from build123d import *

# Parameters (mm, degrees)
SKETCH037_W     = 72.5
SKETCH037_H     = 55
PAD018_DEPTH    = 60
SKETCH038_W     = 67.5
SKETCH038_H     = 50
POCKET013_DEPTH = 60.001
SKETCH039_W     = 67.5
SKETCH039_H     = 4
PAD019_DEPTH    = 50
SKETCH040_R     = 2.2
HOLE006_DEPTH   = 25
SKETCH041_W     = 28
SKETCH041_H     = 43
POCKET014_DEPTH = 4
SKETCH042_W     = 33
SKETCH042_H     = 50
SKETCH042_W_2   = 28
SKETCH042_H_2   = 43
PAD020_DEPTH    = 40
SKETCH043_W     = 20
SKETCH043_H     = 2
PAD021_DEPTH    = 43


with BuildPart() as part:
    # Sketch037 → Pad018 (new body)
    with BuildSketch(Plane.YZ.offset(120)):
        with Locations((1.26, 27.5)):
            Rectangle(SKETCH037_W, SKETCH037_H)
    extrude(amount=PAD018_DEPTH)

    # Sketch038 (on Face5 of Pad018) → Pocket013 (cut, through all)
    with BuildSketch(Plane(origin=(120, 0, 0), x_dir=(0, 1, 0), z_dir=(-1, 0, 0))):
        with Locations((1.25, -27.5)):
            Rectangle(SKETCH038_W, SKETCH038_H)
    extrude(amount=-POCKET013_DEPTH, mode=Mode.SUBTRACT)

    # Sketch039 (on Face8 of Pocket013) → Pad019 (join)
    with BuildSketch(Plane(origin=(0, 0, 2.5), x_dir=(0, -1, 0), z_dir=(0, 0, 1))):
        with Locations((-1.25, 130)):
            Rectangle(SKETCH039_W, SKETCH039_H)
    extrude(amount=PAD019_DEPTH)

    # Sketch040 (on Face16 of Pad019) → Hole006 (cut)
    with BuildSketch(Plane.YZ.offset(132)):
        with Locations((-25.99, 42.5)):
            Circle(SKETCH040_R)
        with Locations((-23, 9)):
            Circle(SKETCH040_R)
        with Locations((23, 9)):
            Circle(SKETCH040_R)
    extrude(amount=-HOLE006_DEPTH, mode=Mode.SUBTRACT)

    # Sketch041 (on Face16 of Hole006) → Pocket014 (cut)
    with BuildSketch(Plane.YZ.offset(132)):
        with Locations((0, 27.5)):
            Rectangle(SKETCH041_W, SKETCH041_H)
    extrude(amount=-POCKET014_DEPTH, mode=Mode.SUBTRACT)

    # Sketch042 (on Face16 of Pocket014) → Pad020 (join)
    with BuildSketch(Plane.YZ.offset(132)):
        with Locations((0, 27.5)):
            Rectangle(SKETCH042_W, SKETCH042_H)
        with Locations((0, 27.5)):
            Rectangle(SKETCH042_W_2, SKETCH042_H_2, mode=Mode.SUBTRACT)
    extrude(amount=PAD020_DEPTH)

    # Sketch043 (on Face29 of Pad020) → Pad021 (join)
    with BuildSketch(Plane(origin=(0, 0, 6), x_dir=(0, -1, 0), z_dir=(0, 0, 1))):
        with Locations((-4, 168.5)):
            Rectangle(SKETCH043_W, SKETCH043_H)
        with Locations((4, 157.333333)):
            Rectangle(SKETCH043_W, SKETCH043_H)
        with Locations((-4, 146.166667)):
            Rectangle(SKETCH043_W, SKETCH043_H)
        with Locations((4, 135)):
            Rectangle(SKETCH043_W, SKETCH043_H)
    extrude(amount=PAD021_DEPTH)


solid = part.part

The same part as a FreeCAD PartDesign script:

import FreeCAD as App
import Part
import Sketcher
from FreeCAD import Vector

doc = App.newDocument("Part")
params = doc.addObject("Spreadsheet::Sheet", "Params")
for row, (alias, value) in enumerate([
    ("sketch1_height", "55 mm"),
    ("sketch1_width", "72.5 mm"),
    ("pad1_length", "60 mm"),
    ("sketch2_height", "50 mm"),
    ("sketch2_width", "67.5 mm"),
    ("sketch3_width", "4 mm"),
    ("sketch3_height", "67.5 mm"),
    ("pad2_length", "50 mm"),
    ("sketch4_diameter", "4.4 mm"),
    ("pocket2_length", "25 mm"),
    ("sketch5_width", "28 mm"),
    ("sketch5_height", "43 mm"),
    ("pocket3_length", "4 mm"),
    ("sketch6_width", "33 mm"),
    ("sketch6_width2", "28 mm"),
    ("sketch6_height", "50 mm"),
    ("sketch6_height2", "43 mm"),
    ("pad3_length", "40 mm"),
    ("sketch7_width", "2 mm"),
    ("sketch7_height", "20 mm"),
    ("pad4_length", "43 mm"),
], start=1):
    params.set(f"A{row}", alias)
    params.set(f"B{row}", "=" + value)
    params.setAlias(f"B{row}", alias)

body = doc.addObject("PartDesign::Body", "Body")

sketch1 = doc.addObject("Sketcher::SketchObject", "Sketch")
body.addObject(sketch1)
sketch1.AttachmentSupport = (doc.YZ_Plane, [""])
sketch1.MapMode = "FlatFace"
sketch1.AttachmentOffset = App.Placement(Vector(0, 0, 120), App.Rotation())
sketch1.addGeometry(Part.LineSegment(Vector(-34.99, 55, 0), Vector(-34.99, 0, 0)), False)
sketch1.addGeometry(Part.LineSegment(Vector(-34.99, 0, 0), Vector(37.51, 0, 0)), False)
sketch1.addGeometry(Part.LineSegment(Vector(37.51, 0, 0), Vector(37.51, 55, 0)), False)
sketch1.addGeometry(Part.LineSegment(Vector(37.51, 55, 0), Vector(-34.99, 55, 0)), False)
sketch1.addConstraint(Sketcher.Constraint("Coincident", 0, 2, 1, 1))
sketch1.addConstraint(Sketcher.Constraint("Coincident", 1, 2, 2, 1))
sketch1.addConstraint(Sketcher.Constraint("Coincident", 2, 2, 3, 1))
sketch1.addConstraint(Sketcher.Constraint("Coincident", 3, 2, 0, 1))
sketch1.addConstraint(Sketcher.Constraint("Vertical", 0))
sketch1.addConstraint(Sketcher.Constraint("Horizontal", 1))
sketch1.addConstraint(Sketcher.Constraint("Vertical", 2))
sketch1.addConstraint(Sketcher.Constraint("Horizontal", 3))
sketch1.addConstraint(Sketcher.Constraint("PointOnObject", 0, 2, -1))
sketch1.addConstraint(Sketcher.Constraint("DistanceY", 0, 2, 0, 1, 55.0))
sketch1.addConstraint(Sketcher.Constraint("DistanceX", 1, 1, 1, 2, 72.5))
sketch1.addConstraint(Sketcher.Constraint("DistanceX", 0, 2, -1, 1, 34.99))
sketch1.setExpression("Constraints[9]", "Params.sketch1_height")
sketch1.setExpression("Constraints[10]", "Params.sketch1_width")
pad1 = doc.addObject("PartDesign::Pad", "Pad")
body.addObject(pad1)
pad1.Profile = sketch1
pad1.setExpression("Length", "Params.pad1_length")

sketch2 = doc.addObject("Sketcher::SketchObject", "Sketch001")
body.addObject(sketch2)
sketch2.AttachmentSupport = (doc.YZ_Plane, [""])
sketch2.MapMode = "FlatFace"
sketch2.AttachmentOffset = App.Placement(Vector(0, 0, 120), App.Rotation())
sketch2.addGeometry(Part.LineSegment(Vector(-32.5, 2.5, 0), Vector(-32.5, 52.5, 0)), False)
sketch2.addGeometry(Part.LineSegment(Vector(-32.5, 52.5, 0), Vector(35, 52.5, 0)), False)
sketch2.addGeometry(Part.LineSegment(Vector(35, 52.5, 0), Vector(35, 2.5, 0)), False)
sketch2.addGeometry(Part.LineSegment(Vector(35, 2.5, 0), Vector(-32.5, 2.5, 0)), False)
sketch2.addConstraint(Sketcher.Constraint("Coincident", 0, 2, 1, 1))
sketch2.addConstraint(Sketcher.Constraint("Coincident", 1, 2, 2, 1))
sketch2.addConstraint(Sketcher.Constraint("Coincident", 2, 2, 3, 1))
sketch2.addConstraint(Sketcher.Constraint("Coincident", 3, 2, 0, 1))
sketch2.addConstraint(Sketcher.Constraint("Vertical", 0))
sketch2.addConstraint(Sketcher.Constraint("Horizontal", 1))
sketch2.addConstraint(Sketcher.Constraint("Vertical", 2))
sketch2.addConstraint(Sketcher.Constraint("Horizontal", 3))
sketch2.addConstraint(Sketcher.Constraint("DistanceY", 0, 1, 0, 2, 50.0))
sketch2.addConstraint(Sketcher.Constraint("DistanceX", 1, 1, 1, 2, 67.5))
sketch2.addConstraint(Sketcher.Constraint("DistanceX", -1, 1, 1, 2, 35.0))
sketch2.addConstraint(Sketcher.Constraint("DistanceY", -1, 1, 0, 2, 52.5))
sketch2.setExpression("Constraints[8]", "Params.sketch2_height")
sketch2.setExpression("Constraints[9]", "Params.sketch2_width")
pocket1 = doc.addObject("PartDesign::Pocket", "Pocket")
body.addObject(pocket1)
pocket1.Profile = sketch2
pocket1.Type = "ThroughAll"
pocket1.Reversed = True

sketch3 = doc.addObject("Sketcher::SketchObject", "Sketch002")
body.addObject(sketch3)
sketch3.AttachmentSupport = (doc.XY_Plane, [""])
sketch3.MapMode = "FlatFace"
sketch3.AttachmentOffset = App.Placement(Vector(0, 0, 2.5), App.Rotation())
sketch3.addGeometry(Part.LineSegment(Vector(132, 35, 0), Vector(128, 35, 0)), False)
sketch3.addGeometry(Part.LineSegment(Vector(128, 35, 0), Vector(128, -32.5, 0)), False)
sketch3.addGeometry(Part.LineSegment(Vector(128, -32.5, 0), Vector(132, -32.5, 0)), False)
sketch3.addGeometry(Part.LineSegment(Vector(132, -32.5, 0), Vector(132, 35, 0)), False)
sketch3.addConstraint(Sketcher.Constraint("Coincident", 0, 2, 1, 1))
sketch3.addConstraint(Sketcher.Constraint("Coincident", 1, 2, 2, 1))
sketch3.addConstraint(Sketcher.Constraint("Coincident", 2, 2, 3, 1))
sketch3.addConstraint(Sketcher.Constraint("Coincident", 3, 2, 0, 1))
sketch3.addConstraint(Sketcher.Constraint("Horizontal", 0))
sketch3.addConstraint(Sketcher.Constraint("Vertical", 1))
sketch3.addConstraint(Sketcher.Constraint("Horizontal", 2))
sketch3.addConstraint(Sketcher.Constraint("Vertical", 3))
sketch3.addConstraint(Sketcher.Constraint("DistanceX", 0, 2, 0, 1, 4.0))
sketch3.addConstraint(Sketcher.Constraint("DistanceY", 1, 2, 1, 1, 67.5))
sketch3.addConstraint(Sketcher.Constraint("DistanceX", -1, 1, 0, 2, 128.0))
sketch3.addConstraint(Sketcher.Constraint("DistanceY", -1, 1, 0, 2, 35.0))
sketch3.setExpression("Constraints[8]", "Params.sketch3_width")
sketch3.setExpression("Constraints[9]", "Params.sketch3_height")
pad2 = doc.addObject("PartDesign::Pad", "Pad001")
body.addObject(pad2)
pad2.Profile = sketch3
pad2.setExpression("Length", "Params.pad2_length")

sketch4 = doc.addObject("Sketcher::SketchObject", "Sketch003")
body.addObject(sketch4)
sketch4.AttachmentSupport = (doc.YZ_Plane, [""])
sketch4.MapMode = "FlatFace"
sketch4.AttachmentOffset = App.Placement(Vector(0, 0, 132), App.Rotation())
sketch4.addGeometry(Part.Circle(Vector(-25.99, 42.5, 0), Vector(0, 0, 1), 2.2), False)
sketch4.addGeometry(Part.Circle(Vector(-23, 9, 0), Vector(0, 0, 1), 2.2), False)
sketch4.addGeometry(Part.Circle(Vector(23, 9, 0), Vector(0, 0, 1), 2.2), False)
sketch4.addConstraint(Sketcher.Constraint("Equal", 0, 1))
sketch4.addConstraint(Sketcher.Constraint("Equal", 1, 2))
sketch4.addConstraint(Sketcher.Constraint("Symmetric", 1, 3, 2, 3, -2))
sketch4.addConstraint(Sketcher.Constraint("Diameter", 0, 4.4))
sketch4.addConstraint(Sketcher.Constraint("DistanceX", 1, 3, -1, 1, 23.0))
sketch4.addConstraint(Sketcher.Constraint("DistanceY", -1, 1, 1, 3, 9.0))
sketch4.addConstraint(Sketcher.Constraint("DistanceY", -1, 1, 0, 3, 42.5))
sketch4.addConstraint(Sketcher.Constraint("DistanceX", 0, 3, -1, 1, 25.99))
sketch4.setExpression("Constraints[3]", "Params.sketch4_diameter")
pocket2 = doc.addObject("PartDesign::Pocket", "Pocket001")
body.addObject(pocket2)
pocket2.Profile = sketch4
pocket2.setExpression("Length", "Params.pocket2_length")

sketch5 = doc.addObject("Sketcher::SketchObject", "Sketch004")
body.addObject(sketch5)
sketch5.AttachmentSupport = (doc.YZ_Plane, [""])
sketch5.MapMode = "FlatFace"
sketch5.AttachmentOffset = App.Placement(Vector(0, 0, 132), App.Rotation())
sketch5.addGeometry(Part.LineSegment(Vector(-14, 49, 0), Vector(-14, 6, 0)), False)
sketch5.addGeometry(Part.LineSegment(Vector(-14, 6, 0), Vector(14, 6, 0)), False)
sketch5.addGeometry(Part.LineSegment(Vector(14, 6, 0), Vector(14, 49, 0)), False)
sketch5.addGeometry(Part.LineSegment(Vector(14, 49, 0), Vector(-14, 49, 0)), False)
sketch5.addConstraint(Sketcher.Constraint("Coincident", 0, 2, 1, 1))
sketch5.addConstraint(Sketcher.Constraint("Coincident", 1, 2, 2, 1))
sketch5.addConstraint(Sketcher.Constraint("Coincident", 2, 2, 3, 1))
sketch5.addConstraint(Sketcher.Constraint("Coincident", 3, 2, 0, 1))
sketch5.addConstraint(Sketcher.Constraint("Vertical", 0))
sketch5.addConstraint(Sketcher.Constraint("Horizontal", 1))
sketch5.addConstraint(Sketcher.Constraint("Vertical", 2))
sketch5.addConstraint(Sketcher.Constraint("Horizontal", 3))
sketch5.addConstraint(Sketcher.Constraint("DistanceX", 1, 1, 1, 2, 28.0))
sketch5.addConstraint(Sketcher.Constraint("DistanceY", 0, 2, 0, 1, 43.0))
sketch5.addConstraint(Sketcher.Constraint("DistanceX", 0, 2, -1, 1, 14.0))
sketch5.addConstraint(Sketcher.Constraint("DistanceY", -1, 1, 0, 2, 6.0))
sketch5.setExpression("Constraints[8]", "Params.sketch5_width")
sketch5.setExpression("Constraints[9]", "Params.sketch5_height")
pocket3 = doc.addObject("PartDesign::Pocket", "Pocket002")
body.addObject(pocket3)
pocket3.Profile = sketch5
pocket3.setExpression("Length", "Params.pocket3_length")

sketch6 = doc.addObject("Sketcher::SketchObject", "Sketch005")
body.addObject(sketch6)
sketch6.AttachmentSupport = (doc.YZ_Plane, [""])
sketch6.MapMode = "FlatFace"
sketch6.AttachmentOffset = App.Placement(Vector(0, 0, 132), App.Rotation())
sketch6.addGeometry(Part.LineSegment(Vector(-16.5, 52.5, 0), Vector(-16.5, 2.5, 0)), False)
sketch6.addGeometry(Part.LineSegment(Vector(-16.5, 2.5, 0), Vector(16.5, 2.5, 0)), False)
sketch6.addGeometry(Part.LineSegment(Vector(16.5, 2.5, 0), Vector(16.5, 52.5, 0)), False)
sketch6.addGeometry(Part.LineSegment(Vector(16.5, 52.5, 0), Vector(-16.5, 52.5, 0)), False)
sketch6.addGeometry(Part.LineSegment(Vector(14, 6, 0), Vector(-14, 6, 0)), False)
sketch6.addGeometry(Part.LineSegment(Vector(-14, 6, 0), Vector(-14, 49, 0)), False)
sketch6.addGeometry(Part.LineSegment(Vector(-14, 49, 0), Vector(14, 49, 0)), False)
sketch6.addGeometry(Part.LineSegment(Vector(14, 49, 0), Vector(14, 6, 0)), False)
sketch6.addConstraint(Sketcher.Constraint("Coincident", 0, 2, 1, 1))
sketch6.addConstraint(Sketcher.Constraint("Coincident", 1, 2, 2, 1))
sketch6.addConstraint(Sketcher.Constraint("Coincident", 2, 2, 3, 1))
sketch6.addConstraint(Sketcher.Constraint("Coincident", 3, 2, 0, 1))
sketch6.addConstraint(Sketcher.Constraint("Coincident", 4, 2, 5, 1))
sketch6.addConstraint(Sketcher.Constraint("Coincident", 5, 2, 6, 1))
sketch6.addConstraint(Sketcher.Constraint("Coincident", 6, 2, 7, 1))
sketch6.addConstraint(Sketcher.Constraint("Coincident", 7, 2, 4, 1))
sketch6.addConstraint(Sketcher.Constraint("Vertical", 0))
sketch6.addConstraint(Sketcher.Constraint("Horizontal", 1))
sketch6.addConstraint(Sketcher.Constraint("Vertical", 2))
sketch6.addConstraint(Sketcher.Constraint("Horizontal", 3))
sketch6.addConstraint(Sketcher.Constraint("Horizontal", 4))
sketch6.addConstraint(Sketcher.Constraint("Vertical", 5))
sketch6.addConstraint(Sketcher.Constraint("Horizontal", 6))
sketch6.addConstraint(Sketcher.Constraint("Vertical", 7))
sketch6.addConstraint(Sketcher.Constraint("DistanceX", 1, 1, 1, 2, 33.0))
sketch6.addConstraint(Sketcher.Constraint("DistanceX", 4, 2, 4, 1, 28.0))
sketch6.addConstraint(Sketcher.Constraint("DistanceY", 0, 2, 0, 1, 50.0))
sketch6.addConstraint(Sketcher.Constraint("DistanceY", 5, 1, 5, 2, 43.0))
sketch6.addConstraint(Sketcher.Constraint("DistanceX", 4, 2, -1, 1, 14.0))
sketch6.addConstraint(Sketcher.Constraint("DistanceY", -1, 1, 4, 2, 6.0))
sketch6.addConstraint(Sketcher.Constraint("DistanceX", 0, 2, -1, 1, 16.5))
sketch6.addConstraint(Sketcher.Constraint("DistanceY", -1, 1, 0, 2, 2.5))
sketch6.setExpression("Constraints[16]", "Params.sketch6_width")
sketch6.setExpression("Constraints[17]", "Params.sketch6_width2")
sketch6.setExpression("Constraints[18]", "Params.sketch6_height")
sketch6.setExpression("Constraints[19]", "Params.sketch6_height2")
pad3 = doc.addObject("PartDesign::Pad", "Pad002")
body.addObject(pad3)
pad3.Profile = sketch6
pad3.setExpression("Length", "Params.pad3_length")

sketch7 = doc.addObject("Sketcher::SketchObject", "Sketch006")
body.addObject(sketch7)
sketch7.AttachmentSupport = (doc.XY_Plane, [""])
sketch7.MapMode = "FlatFace"
sketch7.AttachmentOffset = App.Placement(Vector(0, 0, 6), App.Rotation())
sketch7.addGeometry(Part.LineSegment(Vector(169.5, 14, 0), Vector(167.5, 14, 0)), False)
sketch7.addGeometry(Part.LineSegment(Vector(167.5, 14, 0), Vector(167.5, -6, 0)), False)
sketch7.addGeometry(Part.LineSegment(Vector(167.5, -6, 0), Vector(169.5, -6, 0)), False)
sketch7.addGeometry(Part.LineSegment(Vector(169.5, -6, 0), Vector(169.5, 14, 0)), False)
sketch7.addGeometry(Part.LineSegment(Vector(158.333333, 6, 0), Vector(156.333333, 6, 0)), False)
sketch7.addGeometry(Part.LineSegment(Vector(156.333333, 6, 0), Vector(156.333333, -14, 0)), False)
sketch7.addGeometry(Part.LineSegment(Vector(156.333333, -14, 0), Vector(158.333333, -14, 0)), False)
sketch7.addGeometry(Part.LineSegment(Vector(158.333333, -14, 0), Vector(158.333333, 6, 0)), False)
sketch7.addGeometry(Part.LineSegment(Vector(147.166667, 14, 0), Vector(145.166667, 14, 0)), False)
sketch7.addGeometry(Part.LineSegment(Vector(145.166667, 14, 0), Vector(145.166667, -6, 0)), False)
sketch7.addGeometry(Part.LineSegment(Vector(145.166667, -6, 0), Vector(147.166667, -6, 0)), False)
sketch7.addGeometry(Part.LineSegment(Vector(147.166667, -6, 0), Vector(147.166667, 14, 0)), False)
sketch7.addGeometry(Part.LineSegment(Vector(136, 6, 0), Vector(134, 6, 0)), False)
sketch7.addGeometry(Part.LineSegment(Vector(134, 6, 0), Vector(134, -14, 0)), False)
sketch7.addGeometry(Part.LineSegment(Vector(134, -14, 0), Vector(136, -14, 0)), False)
sketch7.addGeometry(Part.LineSegment(Vector(136, -14, 0), Vector(136, 6, 0)), False)
sketch7.addConstraint(Sketcher.Constraint("Coincident", 0, 2, 1, 1))
sketch7.addConstraint(Sketcher.Constraint("Coincident", 1, 2, 2, 1))
sketch7.addConstraint(Sketcher.Constraint("Coincident", 2, 2, 3, 1))
sketch7.addConstraint(Sketcher.Constraint("Coincident", 3, 2, 0, 1))
sketch7.addConstraint(Sketcher.Constraint("Coincident", 4, 2, 5, 1))
sketch7.addConstraint(Sketcher.Constraint("Coincident", 5, 2, 6, 1))
sketch7.addConstraint(Sketcher.Constraint("Coincident", 6, 2, 7, 1))
sketch7.addConstraint(Sketcher.Constraint("Coincident", 7, 2, 4, 1))
sketch7.addConstraint(Sketcher.Constraint("Coincident", 8, 2, 9, 1))
sketch7.addConstraint(Sketcher.Constraint("Coincident", 9, 2, 10, 1))
sketch7.addConstraint(Sketcher.Constraint("Coincident", 10, 2, 11, 1))
sketch7.addConstraint(Sketcher.Constraint("Coincident", 11, 2, 8, 1))
sketch7.addConstraint(Sketcher.Constraint("Coincident", 12, 2, 13, 1))
sketch7.addConstraint(Sketcher.Constraint("Coincident", 13, 2, 14, 1))
sketch7.addConstraint(Sketcher.Constraint("Coincident", 14, 2, 15, 1))
sketch7.addConstraint(Sketcher.Constraint("Coincident", 15, 2, 12, 1))
sketch7.addConstraint(Sketcher.Constraint("Horizontal", 0))
sketch7.addConstraint(Sketcher.Constraint("Vertical", 1))
sketch7.addConstraint(Sketcher.Constraint("Horizontal", 2))
sketch7.addConstraint(Sketcher.Constraint("Vertical", 3))
sketch7.addConstraint(Sketcher.Constraint("Horizontal", 4))
sketch7.addConstraint(Sketcher.Constraint("Vertical", 5))
sketch7.addConstraint(Sketcher.Constraint("Horizontal", 6))
sketch7.addConstraint(Sketcher.Constraint("Vertical", 7))
sketch7.addConstraint(Sketcher.Constraint("Horizontal", 8))
sketch7.addConstraint(Sketcher.Constraint("Vertical", 9))
sketch7.addConstraint(Sketcher.Constraint("Horizontal", 10))
sketch7.addConstraint(Sketcher.Constraint("Vertical", 11))
sketch7.addConstraint(Sketcher.Constraint("Horizontal", 12))
sketch7.addConstraint(Sketcher.Constraint("Vertical", 13))
sketch7.addConstraint(Sketcher.Constraint("Horizontal", 14))
sketch7.addConstraint(Sketcher.Constraint("Vertical", 15))
sketch7.addConstraint(Sketcher.Constraint("Horizontal", 3, 2, 8, 2))
sketch7.addConstraint(Sketcher.Constraint("Horizontal", 2, 2, 9, 2))
sketch7.addConstraint(Sketcher.Constraint("Horizontal", 7, 2, 12, 2))
sketch7.addConstraint(Sketcher.Constraint("Horizontal", 6, 2, 13, 2))
sketch7.addConstraint(Sketcher.Constraint("Equal", 2, 4))
sketch7.addConstraint(Sketcher.Constraint("Equal", 6, 8))
sketch7.addConstraint(Sketcher.Constraint("Equal", 10, 12))
sketch7.addConstraint(Sketcher.Constraint("Equal", 3, 5))
sketch7.addConstraint(Sketcher.Constraint("DistanceX", 0, 2, 0, 1, 2.0))
sketch7.addConstraint(Sketcher.Constraint("DistanceY", 1, 2, 1, 1, 20.0))
sketch7.addConstraint(Sketcher.Constraint("DistanceY", -1, 1, 0, 2, 14.0))
sketch7.addConstraint(Sketcher.Constraint("DistanceY", -1, 1, 4, 2, 6.0))
sketch7.addConstraint(Sketcher.Constraint("DistanceX", -1, 1, 12, 2, 134.0))
sketch7.addConstraint(Sketcher.Constraint("DistanceX", -1, 1, 0, 2, 167.5))
sketch7.addConstraint(Sketcher.Constraint("DistanceX", -1, 1, 4, 2, 156.333333))
sketch7.addConstraint(Sketcher.Constraint("DistanceX", -1, 1, 8, 2, 145.166667))
sketch7.setExpression("Constraints[40]", "Params.sketch7_width")
sketch7.setExpression("Constraints[41]", "Params.sketch7_height")
pad4 = doc.addObject("PartDesign::Pad", "Pad003")
body.addObject(pad4)
pad4.Profile = sketch7
pad4.setExpression("Length", "Params.pad4_length")

doc.recompute()
